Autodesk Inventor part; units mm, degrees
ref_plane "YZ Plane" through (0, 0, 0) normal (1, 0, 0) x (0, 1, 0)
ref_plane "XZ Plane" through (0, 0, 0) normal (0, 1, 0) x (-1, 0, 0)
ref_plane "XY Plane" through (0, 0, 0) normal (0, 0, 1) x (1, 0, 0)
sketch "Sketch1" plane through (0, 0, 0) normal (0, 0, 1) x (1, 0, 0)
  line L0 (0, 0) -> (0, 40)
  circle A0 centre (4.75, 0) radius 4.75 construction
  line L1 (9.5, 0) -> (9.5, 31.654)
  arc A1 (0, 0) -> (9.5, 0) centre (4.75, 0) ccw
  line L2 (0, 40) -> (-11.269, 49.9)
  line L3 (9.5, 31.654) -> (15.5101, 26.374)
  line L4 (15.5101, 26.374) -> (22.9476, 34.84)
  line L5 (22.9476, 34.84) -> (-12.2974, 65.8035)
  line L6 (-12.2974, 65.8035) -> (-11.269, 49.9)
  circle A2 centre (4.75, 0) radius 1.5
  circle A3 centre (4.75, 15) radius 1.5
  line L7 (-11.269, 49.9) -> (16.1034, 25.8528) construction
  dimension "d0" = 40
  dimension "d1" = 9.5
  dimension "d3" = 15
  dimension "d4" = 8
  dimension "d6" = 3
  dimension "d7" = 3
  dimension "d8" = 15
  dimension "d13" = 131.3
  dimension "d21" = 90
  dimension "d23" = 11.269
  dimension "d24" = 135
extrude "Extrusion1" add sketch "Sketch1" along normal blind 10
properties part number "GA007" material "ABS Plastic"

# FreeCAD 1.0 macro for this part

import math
import FreeCAD as App
import Part
import Sketcher
from FreeCAD import Vector
Q = App.Units.Quantity

doc = App.newDocument("Part")
params = doc.addObject("Spreadsheet::Sheet", "Params")
for row, (alias, value) in enumerate([
    ("sketch1_diameter", "3 mm"),
    ("sketch1_height", "40 mm"),
    ("sketch1_radius", "4.75 mm"),
    ("sketch1_length", "8 mm"),
    ("sketch1_length2", "15 mm"),
    ("pad1_length", "10 mm"),
], start=1):
    params.set(f"A{row}", alias)
    params.set(f"B{row}", "=" + value)
    params.setAlias(f"B{row}", alias)

body = doc.addObject("PartDesign::Body", "Body")

# Sketch on XY plane
sketch1 = body.newObject("Sketcher::SketchObject", "Sketch")
sketch1.AttachmentSupport = (doc.getObject("XY_Plane"), [""])
sketch1.MapMode = "FlatFace"
sketch1.addGeometry([
    Part.LineSegment(Vector(0, 40, 0), Vector(0, 0, 0)),  # 0
    Part.ArcOfCircle(Part.Circle(Vector(4.8, 0, 0), Vector(0, 0, 1), 4.8), math.radians(180), math.radians(360)),  # 1
    Part.LineSegment(Vector(9.5, 0, 0), Vector(9.5, 31.7, 0)),  # 2
    Part.LineSegment(Vector(9.5, 31.7, 0), Vector(15.5, 26.4, 0)),  # 3
    Part.LineSegment(Vector(15.5, 26.4, 0), Vector(22.9, 34.8, 0)),  # 4
    Part.LineSegment(Vector(22.9, 34.8, 0), Vector(-12.3, 65.8, 0)),  # 5
    Part.LineSegment(Vector(-12.3, 65.8, 0), Vector(-11.3, 49.9, 0)),  # 6
    Part.LineSegment(Vector(-11.3, 49.9, 0), Vector(0, 40, 0)),  # 7
    Part.Circle(Vector(4.8, 0, 0), Vector(0, 0, 1), 1.5),  # 8
    Part.Circle(Vector(4.8, 15, 0), Vector(0, 0, 1), 1.5),  # 9
], False)
sketch1.addConstraint([
    Sketcher.Constraint("Tangent", 0, 2, 1, 1),
    Sketcher.Constraint("Tangent", 1, 2, 2, 1),
    Sketcher.Constraint("Coincident", 2, 2, 3, 1),
    Sketcher.Constraint("Coincident", 3, 2, 4, 1),
    Sketcher.Constraint("Coincident", 4, 2, 5, 1),
    Sketcher.Constraint("Coincident", 5, 2, 6, 1),
    Sketcher.Constraint("Coincident", 6, 2, 7, 1),
    Sketcher.Constraint("Coincident", 7, 2, 0, 1),
    Sketcher.Constraint("Vertical", 0),
    Sketcher.Constraint("Vertical", 2),
    Sketcher.Constraint("Coincident", 0, 2, -1, 1),
    Sketcher.Constraint("Coincident", 8, 3, 1, 3),
    Sketcher.Constraint("Equal", 8, 9),
    Sketcher.Constraint("Perpendicular", 3, 4),
    Sketcher.Constraint("Perpendicular", 4, 5),
    Sketcher.Constraint("Parallel", 5, 7),
    Sketcher.Constraint("Vertical", 8, 3, 9, 3),
    Sketcher.Constraint("Diameter", 8, Q("3 mm")),
    Sketcher.Constraint("DistanceY", 0, 2, 0, 1, Q("40 mm")),
    Sketcher.Constraint("Radius", 1, Q("4.75 mm")),
    Sketcher.Constraint("Distance", 3, Q("8 mm")),
    Sketcher.Constraint("Distance", 7, Q("15 mm")),
    Sketcher.Constraint("DistanceY", -1, 1, 9, 3, Q("15 mm")),
    Sketcher.Constraint("Distance", 4, Q("11.269 mm")),
    Sketcher.Constraint("DistanceX", 6, 2, -1, 1, Q("11.269 mm")),
    Sketcher.Constraint("Angle", 6, Q("-86.3 deg")),
    Sketcher.Constraint("DistanceY", 2, 1, 2, 2, Q("31.654 mm")),
])
sketch1.setExpression("Constraints[17]", "Params.sketch1_diameter")
sketch1.setExpression("Constraints[18]", "Params.sketch1_height")
sketch1.setExpression("Constraints[19]", "Params.sketch1_radius")
sketch1.setExpression("Constraints[20]", "Params.sketch1_length")
sketch1.setExpression("Constraints[21]", "Params.sketch1_length2")
pad1 = body.newObject("PartDesign::Pad", "Pad")
pad1.Profile = sketch1
pad1.setExpression("Length", "Params.pad1_length")

doc.recompute()
